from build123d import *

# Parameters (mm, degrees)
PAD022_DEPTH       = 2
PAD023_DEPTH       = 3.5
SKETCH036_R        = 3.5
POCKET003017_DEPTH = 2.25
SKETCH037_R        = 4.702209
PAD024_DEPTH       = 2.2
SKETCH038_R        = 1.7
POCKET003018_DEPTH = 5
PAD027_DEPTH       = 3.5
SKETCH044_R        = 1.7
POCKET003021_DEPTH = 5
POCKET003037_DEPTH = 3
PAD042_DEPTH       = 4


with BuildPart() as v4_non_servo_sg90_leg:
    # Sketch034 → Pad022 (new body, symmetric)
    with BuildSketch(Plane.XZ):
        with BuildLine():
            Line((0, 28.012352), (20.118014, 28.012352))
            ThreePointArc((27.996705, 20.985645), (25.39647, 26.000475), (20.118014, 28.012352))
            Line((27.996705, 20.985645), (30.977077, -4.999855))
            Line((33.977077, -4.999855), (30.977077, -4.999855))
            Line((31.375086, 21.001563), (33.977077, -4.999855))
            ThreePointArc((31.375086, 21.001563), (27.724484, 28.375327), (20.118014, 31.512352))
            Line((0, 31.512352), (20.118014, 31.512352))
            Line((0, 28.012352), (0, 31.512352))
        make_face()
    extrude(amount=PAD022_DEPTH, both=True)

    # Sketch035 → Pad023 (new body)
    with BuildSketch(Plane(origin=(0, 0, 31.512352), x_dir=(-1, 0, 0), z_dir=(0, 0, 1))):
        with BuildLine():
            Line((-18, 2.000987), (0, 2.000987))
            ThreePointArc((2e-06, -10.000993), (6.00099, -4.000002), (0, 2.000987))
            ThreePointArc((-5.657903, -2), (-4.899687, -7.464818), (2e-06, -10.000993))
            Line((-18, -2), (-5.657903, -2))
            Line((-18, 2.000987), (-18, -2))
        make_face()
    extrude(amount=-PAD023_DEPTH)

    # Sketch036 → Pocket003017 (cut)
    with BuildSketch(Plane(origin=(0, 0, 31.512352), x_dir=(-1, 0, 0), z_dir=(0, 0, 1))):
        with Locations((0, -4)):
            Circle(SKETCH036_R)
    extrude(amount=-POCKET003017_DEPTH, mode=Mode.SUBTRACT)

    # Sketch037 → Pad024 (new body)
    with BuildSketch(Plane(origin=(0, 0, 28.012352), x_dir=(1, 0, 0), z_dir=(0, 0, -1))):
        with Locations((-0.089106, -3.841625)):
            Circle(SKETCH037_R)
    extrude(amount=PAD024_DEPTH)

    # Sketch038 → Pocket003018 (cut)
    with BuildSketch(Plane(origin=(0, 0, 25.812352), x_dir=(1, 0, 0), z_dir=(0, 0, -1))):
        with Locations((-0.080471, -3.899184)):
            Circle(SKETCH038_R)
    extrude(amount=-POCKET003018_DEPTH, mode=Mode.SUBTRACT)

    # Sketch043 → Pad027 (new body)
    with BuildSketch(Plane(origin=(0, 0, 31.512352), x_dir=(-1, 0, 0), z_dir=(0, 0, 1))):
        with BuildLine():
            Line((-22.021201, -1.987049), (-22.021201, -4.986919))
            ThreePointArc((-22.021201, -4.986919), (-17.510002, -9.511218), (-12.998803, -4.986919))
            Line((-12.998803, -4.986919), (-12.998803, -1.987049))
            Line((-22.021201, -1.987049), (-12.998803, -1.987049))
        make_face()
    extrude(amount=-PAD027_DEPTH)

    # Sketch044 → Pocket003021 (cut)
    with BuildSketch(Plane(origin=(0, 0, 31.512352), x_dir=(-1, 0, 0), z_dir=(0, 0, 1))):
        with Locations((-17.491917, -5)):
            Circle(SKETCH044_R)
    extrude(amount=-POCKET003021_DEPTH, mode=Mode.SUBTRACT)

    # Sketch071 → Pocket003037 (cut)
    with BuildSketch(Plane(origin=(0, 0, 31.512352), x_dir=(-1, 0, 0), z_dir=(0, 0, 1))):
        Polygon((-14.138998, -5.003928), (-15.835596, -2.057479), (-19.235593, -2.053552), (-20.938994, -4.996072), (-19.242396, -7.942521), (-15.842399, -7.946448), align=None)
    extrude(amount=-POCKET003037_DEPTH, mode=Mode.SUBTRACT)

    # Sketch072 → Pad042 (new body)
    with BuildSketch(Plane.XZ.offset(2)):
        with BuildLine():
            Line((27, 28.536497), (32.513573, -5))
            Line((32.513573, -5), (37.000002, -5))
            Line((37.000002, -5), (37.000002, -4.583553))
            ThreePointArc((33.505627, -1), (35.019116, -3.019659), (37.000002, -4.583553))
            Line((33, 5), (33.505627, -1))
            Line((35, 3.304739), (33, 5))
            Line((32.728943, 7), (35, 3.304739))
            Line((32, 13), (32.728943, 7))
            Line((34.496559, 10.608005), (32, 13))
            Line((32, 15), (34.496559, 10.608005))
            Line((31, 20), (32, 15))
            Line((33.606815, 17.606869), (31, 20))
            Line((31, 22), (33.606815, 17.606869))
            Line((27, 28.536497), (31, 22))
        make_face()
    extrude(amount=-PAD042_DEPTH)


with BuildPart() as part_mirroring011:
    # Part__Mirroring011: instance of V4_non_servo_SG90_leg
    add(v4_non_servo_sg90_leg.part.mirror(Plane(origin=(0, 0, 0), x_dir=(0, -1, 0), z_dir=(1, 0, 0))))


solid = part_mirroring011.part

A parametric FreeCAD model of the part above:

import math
import FreeCAD as App
import Part
import Sketcher

V = App.Vector

doc = App.newDocument("Part")
body = doc.addObject("PartDesign::Body", "Body")

sketch1 = body.newObject("Sketcher::SketchObject", "Sketch")
sketch1.AttachmentSupport = (doc.getObject("XZ_Plane"), [""])
sketch1.MapMode = "FlatFace"
sketch1.addGeometry(Part.LineSegment(V(0, 28, 0), V(20.1, 28, 0)), False)
sketch1.addGeometry(Part.ArcOfCircle(Part.Circle(V(20.1, 20.1, 0), V(0, 0, 1), 7.9), math.radians(7), math.radians(90)), False)
sketch1.addGeometry(Part.LineSegment(V(28, 21, 0), V(31, -5, 0)), False)
sketch1.addGeometry(Part.LineSegment(V(31, -5, 0), V(34, -5, 0)), False)
sketch1.addGeometry(Part.LineSegment(V(34, -5, 0), V(31.4, 21, 0)), False)
sketch1.addGeometry(Part.ArcOfCircle(Part.Circle(V(19.8, 19.8, 0), V(0, 0, 1), 11.7), math.radians(6), math.radians(88)), False)
sketch1.addGeometry(Part.LineSegment(V(20.1, 31.5, 0), V(0, 31.5, 0)), False)
sketch1.addGeometry(Part.LineSegment(V(0, 31.5, 0), V(0, 28, 0)), False)
sketch1.addConstraint(Sketcher.Constraint("Tangent", 0, 2, 1, 2))
sketch1.addConstraint(Sketcher.Constraint("Tangent", 1, 1, 2, 1))
sketch1.addConstraint(Sketcher.Constraint("Coincident", 2, 2, 3, 1))
sketch1.addConstraint(Sketcher.Constraint("Coincident", 3, 2, 4, 1))
sketch1.addConstraint(Sketcher.Constraint("Tangent", 4, 2, 5, 1))
sketch1.addConstraint(Sketcher.Constraint("Coincident", 5, 2, 6, 1))
sketch1.addConstraint(Sketcher.Constraint("Coincident", 6, 2, 7, 1))
sketch1.addConstraint(Sketcher.Constraint("Coincident", 7, 2, 0, 1))
sketch1.addConstraint(Sketcher.Constraint("Horizontal", 0))
sketch1.addConstraint(Sketcher.Constraint("Horizontal", 3))
sketch1.addConstraint(Sketcher.Constraint("Horizontal", 6))
sketch1.addConstraint(Sketcher.Constraint("Vertical", 7))
sketch1.addConstraint(Sketcher.Constraint("PointOnObject", 6, 2, -2))
sketch1.addConstraint(Sketcher.Constraint("Vertical", 0, 2, 5, 2))
sketch1.addConstraint(Sketcher.Constraint("DistanceX", 3, 1, 3, 2, 3.0))
sketch1.addConstraint(Sketcher.Constraint("DistanceY", 7, 2, 7, 1, 3.5))
sketch1.addConstraint(Sketcher.Constraint("Radius", 5, 11.679439))
sketch1.addConstraint(Sketcher.Constraint("Radius", 1, 7.930342))
sketch1.addConstraint(Sketcher.Constraint("DistanceY", 2, 2, 1, 1, 25.9855))
sketch1.addConstraint(Sketcher.Constraint("DistanceX", 0, 1, 0, 2, 20.118014))
sketch1.addConstraint(Sketcher.Constraint("DistanceY", -1, 1, 1, 3, 20.08201))
sketch1.addConstraint(Sketcher.Constraint("DistanceX", -1, 1, 5, 3, 19.753692))
sketch1.addConstraint(Sketcher.Constraint("DistanceX", 1, 3, 1, 1, 7.878691))
pad1 = body.newObject("PartDesign::Pad", "Pad")
pad1.Profile = sketch1
pad1.Length = 4
pad1.Midplane = True

sketch2 = body.newObject("Sketcher::SketchObject", "Sketch001")
sketch2.AttachmentSupport = (doc.getObject("XY_Plane"), [""])
sketch2.MapMode = "FlatFace"
sketch2.AttachmentOffset = App.Placement(V(0, 0, 31.512352), App.Rotation())
sketch2.addGeometry(Part.LineSegment(V(0, -2, 0), V(18, -2, 0)), False)
sketch2.addGeometry(Part.LineSegment(V(18, -2, 0), V(18, 2, 0)), False)
sketch2.addGeometry(Part.LineSegment(V(18, 2, 0), V(5.7, 2, 0)), False)
sketch2.addGeometry(Part.ArcOfCircle(Part.Circle(V(0, 4, 0), V(0, 0, 1), 6), math.radians(-19), math.radians(90)), False)
sketch2.addGeometry(Part.ArcOfCircle(Part.Circle(V(0, 4, 0), V(0, 0, 1), 6), math.radians(90), math.radians(270)), False)
sketch2.addConstraint(Sketcher.Constraint("Coincident", 0, 2, 1, 1))
sketch2.addConstraint(Sketcher.Constraint("Coincident", 1, 2, 2, 1))
sketch2.addConstraint(Sketcher.Constraint("Coincident", 2, 2, 3, 1))
sketch2.addConstraint(Sketcher.Constraint("Tangent", 3, 2, 4, 1))
sketch2.addConstraint(Sketcher.Constraint("Tangent", 4, 2, 0, 1))
sketch2.addConstraint(Sketcher.Constraint("Horizontal", 0))
sketch2.addConstraint(Sketcher.Constraint("Vertical", 1))
sketch2.addConstraint(Sketcher.Constraint("Horizontal", 2))
sketch2.addConstraint(Sketcher.Constraint("Equal", 3, 4))
sketch2.addConstraint(Sketcher.Constraint("PointOnObject", 3, 3, -2))
sketch2.addConstraint(Sketcher.Constraint("PointOnObject", 3, 2, -2))
sketch2.addConstraint(Sketcher.Constraint("DistanceX", 0, 1, 0, 2, 18.0))
sketch2.addConstraint(Sketcher.Constraint("DistanceY", -1, 1, 1, 2, 2.0))
sketch2.addConstraint(Sketcher.Constraint("Radius", 3, 6.00099))
sketch2.addConstraint(Sketcher.Constraint("DistanceX", 2, 2, 2, 1, 12.342097))
pad2 = body.newObject("PartDesign::Pad", "Pad001")
pad2.Profile = sketch2
pad2.Length = 3.5
pad2.Reversed = True

sketch3 = body.newObject("Sketcher::SketchObject", "Sketch002")
sketch3.AttachmentSupport = (doc.getObject("XY_Plane"), [""])
sketch3.MapMode = "FlatFace"
sketch3.AttachmentOffset = App.Placement(V(0, 0, 31.512352), App.Rotation())
sketch3.addGeometry(Part.Circle(V(0, 4, 0), V(0, 0, 1), 3.5), False)
sketch3.addConstraint(Sketcher.Constraint("PointOnObject", 0, 3, -2))
sketch3.addConstraint(Sketcher.Constraint("Diameter", 0, 7.0))
sketch3.addConstraint(Sketcher.Constraint("DistanceY", -1, 1, 0, 3, 4.0))
pocket1 = body.newObject("PartDesign::Pocket", "Pocket")
pocket1.Profile = sketch3
pocket1.Length = 2.25

sketch4 = body.newObject("Sketcher::SketchObject", "Sketch003")
sketch4.AttachmentSupport = (doc.getObject("XY_Plane"), [""])
sketch4.MapMode = "FlatFace"
sketch4.AttachmentOffset = App.Placement(V(0, 0, 28.012352), App.Rotation())
sketch4.addGeometry(Part.Circle(V(-0.1, 3.8, 0), V(0, 0, 1), 4.7), False)
sketch4.addConstraint(Sketcher.Constraint("Diameter", 0, 9.404418))
sketch4.addConstraint(Sketcher.Constraint("DistanceX", 0, 3, -1, 1, 0.089106))
sketch4.addConstraint(Sketcher.Constraint("DistanceY", -1, 1, 0, 3, 3.841625))
pad3 = body.newObject("PartDesign::Pad", "Pad002")
pad3.Profile = sketch4
pad3.Length = 2.2
pad3.Reversed = True

sketch5 = body.newObject("Sketcher::SketchObject", "Sketch004")
sketch5.AttachmentSupport = (doc.getObject("XY_Plane"), [""])
sketch5.MapMode = "FlatFace"
sketch5.AttachmentOffset = App.Placement(V(0, 0, 25.812352), App.Rotation())
sketch5.addGeometry(Part.Circle(V(-0.1, 3.9, 0), V(0, 0, 1), 1.7), False)
sketch5.addConstraint(Sketcher.Constraint("Diameter", 0, 3.4))
sketch5.addConstraint(Sketcher.Constraint("DistanceX", 0, 3, -1, 1, 0.080471))
sketch5.addConstraint(Sketcher.Constraint("DistanceY", -1, 1, 0, 3, 3.899184))
pocket2 = body.newObject("PartDesign::Pocket", "Pocket001")
pocket2.Profile = sketch5
pocket2.Length = 5
pocket2.Reversed = True

sketch6 = body.newObject("Sketcher::SketchObject", "Sketch005")
sketch6.AttachmentSupport = (doc.getObject("XY_Plane"), [""])
sketch6.MapMode = "FlatFace"
sketch6.AttachmentOffset = App.Placement(V(0, 0, 31.512352), App.Rotation())
sketch6.addGeometry(Part.LineSegment(V(22.021201, 1.987049, 0), V(22.021201, 4.986919, 0)), False)
sketch6.addGeometry(Part.ArcOfCircle(Part.Circle(V(17.510002, 5, 0), V(0, 0, 1), 4.511218), math.radians(-0.166139), math.radians(180.166139)), False)
sketch6.addGeometry(Part.LineSegment(V(12.998803, 4.986919, 0), V(12.998803, 1.987049, 0)), False)
sketch6.addGeometry(Part.LineSegment(V(12.998803, 1.987049, 0), V(22.021201, 1.987049, 0)), False)
sketch6.addConstraint(Sketcher.Constraint("Coincident", 0, 2, 1, 1))
sketch6.addConstraint(Sketcher.Constraint("Coincident", 1, 2, 2, 1))
sketch6.addConstraint(Sketcher.Constraint("Coincident", 2, 2, 3, 1))
sketch6.addConstraint(Sketcher.Constraint("Coincident", 3, 2, 0, 1))
sketch6.addConstraint(Sketcher.Constraint("Vertical", 0))
sketch6.addConstraint(Sketcher.Constraint("Vertical", 2))
sketch6.addConstraint(Sketcher.Constraint("Horizontal", 3))
sketch6.addConstraint(Sketcher.Constraint("Horizontal", 0, 2, 1, 2))
sketch6.addConstraint(Sketcher.Constraint("DistanceY", -1, 1, 1, 3, 5.0))
sketch6.addConstraint(Sketcher.Constraint("DistanceX", -1, 1, 1, 3, 17.510002))
sketch6.addConstraint(Sketcher.Constraint("DistanceX", 3, 1, 3, 2, 9.022398))
sketch6.addConstraint(Sketcher.Constraint("Radius", 1, 4.511218))
sketch6.addConstraint(Sketcher.Constraint("DistanceY", 0, 1, 0, 2, 2.99987))
pad4 = body.newObject("PartDesign::Pad", "Pad003")
pad4.Profile = sketch6
pad4.Length = 3.5
pad4.Reversed = True

sketch7 = body.newObject("Sketcher::SketchObject", "Sketch006")
sketch7.AttachmentSupport = (doc.getObject("XY_Plane"), [""])
sketch7.MapMode = "FlatFace"
sketch7.AttachmentOffset = App.Placement(V(0, 0, 31.512352), App.Rotation())
sketch7.addGeometry(Part.Circle(V(17.5, 5, 0), V(0, 0, 1), 1.7), False)
sketch7.addConstraint(Sketcher.Constraint("Diameter", 0, 3.4))
sketch7.addConstraint(Sketcher.Constraint("DistanceY", -1, 1, 0, 3, 5.0))
sketch7.addConstraint(Sketcher.Constraint("DistanceX", -1, 1, 0, 3, 17.491917))
pocket3 = body.newObject("PartDesign::Pocket", "Pocket002")
pocket3.Profile = sketch7
pocket3.Length = 5

sketch8 = body.newObject("Sketcher::SketchObject", "Sketch007")
sketch8.AttachmentSupport = (doc.getObject("XY_Plane"), [""])
sketch8.MapMode = "FlatFace"
sketch8.AttachmentOffset = App.Placement(V(0, 0, 31.512352), App.Rotation())
sketch8.addGeometry(Part.LineSegment(V(14.1, 5, 0), V(15.8, 2.1, 0)), False)
sketch8.addGeometry(Part.LineSegment(V(15.8, 2.1, 0), V(19.2, 2.1, 0)), False)
sketch8.addGeometry(Part.LineSegment(V(19.2, 2.1, 0), V(20.9, 5, 0)), False)
sketch8.addGeometry(Part.LineSegment(V(20.9, 5, 0), V(19.2, 7.9, 0)), False)
sketch8.addGeometry(Part.LineSegment(V(19.2, 7.9, 0), V(15.8, 7.9, 0)), False)
sketch8.addGeometry(Part.LineSegment(V(15.8, 7.9, 0), V(14.1, 5, 0)), False)
sketch8.addConstraint(Sketcher.Constraint("Coincident", 0, 2, 1, 1))
sketch8.addConstraint(Sketcher.Constraint("Coincident", 1, 2, 2, 1))
sketch8.addConstraint(Sketcher.Constraint("Coincident", 2, 2, 3, 1))
sketch8.addConstraint(Sketcher.Constraint("Coincident", 3, 2, 4, 1))
sketch8.addConstraint(Sketcher.Constraint("Coincident", 4, 2, 5, 1))
sketch8.addConstraint(Sketcher.Constraint("Coincident", 5, 2, 0, 1))
sketch8.addConstraint(Sketcher.Constraint("Parallel", 0, 3))
sketch8.addConstraint(Sketcher.Constraint("Parallel", 1, 4))
sketch8.addConstraint(Sketcher.Constraint("Parallel", 2, 5))
sketch8.addConstraint(Sketcher.Constraint("Equal", 0, 1))
sketch8.addConstraint(Sketcher.Constraint("Equal", 1, 2))
sketch8.addConstraint(Sketcher.Constraint("Equal", 2, 3))
sketch8.addConstraint(Sketcher.Constraint("Distance", 0, 3.400001))
sketch8.addConstraint(Sketcher.Constraint("DistanceX", -1, 1, 5, 2, 14.138998))
sketch8.addConstraint(Sketcher.Constraint("DistanceX", -1, 1, 4, 2, 15.842399))
sketch8.addConstraint(Sketcher.Constraint("DistanceX", 3, 2, 2, 2, 1.696598))
sketch8.addConstraint(Sketcher.Constraint("DistanceY", -1, 1, 0, 2, 2.057479))
sketch8.addConstraint(Sketcher.Constraint("DistanceY", -1, 1, 1, 2, 2.053552))
pocket4 = body.newObject("PartDesign::Pocket", "Pocket003")
pocket4.Profile = sketch8
pocket4.Length = 3

sketch9 = body.newObject("Sketcher::SketchObject", "Sketch008")
sketch9.AttachmentSupport = (doc.getObject("XZ_Plane"), [""])
sketch9.MapMode = "FlatFace"
sketch9.AttachmentOffset = App.Placement(V(0, 0, 2), App.Rotation())
sketch9.addGeometry(Part.LineSegment(V(27, 28.54, 0), V(32.51, -5, 0)), False)
sketch9.addGeometry(Part.LineSegment(V(32.51, -5, 0), V(37, -5, 0)), False)
sketch9.addGeometry(Part.LineSegment(V(37, -5, 0), V(37, -4.58, 0)), False)
sketch9.addGeometry(Part.ArcOfCircle(Part.Circle(V(42, 3.79, 0), V(0, 0, 1), 9.76), math.radians(-151), math.radians(-121)), False)
sketch9.addGeometry(Part.LineSegment(V(33.51, -1, 0), V(33, 5, 0)), False)
sketch9.addGeometry(Part.LineSegment(V(33, 5, 0), V(35, 3.3, 0)), False)
sketch9.addGeometry(Part.LineSegment(V(35, 3.3, 0), V(32.73, 7, 0)), False)
sketch9.addGeometry(Part.LineSegment(V(32.73, 7, 0), V(32, 13, 0)), False)
sketch9.addGeometry(Part.LineSegment(V(32, 13, 0), V(34.5, 10.61, 0)), False)
sketch9.addGeometry(Part.LineSegment(V(34.5, 10.61, 0), V(32, 15, 0)), False)
sketch9.addGeometry(Part.LineSegment(V(32, 15, 0), V(31, 20, 0)), False)
sketch9.addGeometry(Part.LineSegment(V(31, 20, 0), V(33.61, 17.61, 0)), False)
sketch9.addGeometry(Part.LineSegment(V(33.61, 17.61, 0), V(31, 22, 0)), False)
sketch9.addGeometry(Part.LineSegment(V(31, 22, 0), V(27, 28.54, 0)), False)
sketch9.addConstraint(Sketcher.Constraint("Coincident", 0, 2, 1, 1))
sketch9.addConstraint(Sketcher.Constraint("Coincident", 1, 2, 2, 1))
sketch9.addConstraint(Sketcher.Constraint("Coincident", 2, 2, 3, 2))
sketch9.addConstraint(Sketcher.Constraint("Coincident", 3, 1, 4, 1))
sketch9.addConstraint(Sketcher.Constraint("Coincident", 4, 2, 5, 1))
sketch9.addConstraint(Sketcher.Constraint("Coincident", 5, 2, 6, 1))
sketch9.addConstraint(Sketcher.Constraint("Coincident", 6, 2, 7, 1))
sketch9.addConstraint(Sketcher.Constraint("Coincident", 7, 2, 8, 1))
sketch9.addConstraint(Sketcher.Constraint("Coincident", 8, 2, 9, 1))
sketch9.addConstraint(Sketcher.Constraint("Coincident", 9, 2, 10, 1))
sketch9.addConstraint(Sketcher.Constraint("Coincident", 10, 2, 11, 1))
sketch9.addConstraint(Sketcher.Constraint("Coincident", 11, 2, 12, 1))
sketch9.addConstraint(Sketcher.Constraint("Coincident", 12, 2, 13, 1))
sketch9.addConstraint(Sketcher.Constraint("Coincident", 13, 2, 0, 1))
sketch9.addConstraint(Sketcher.Constraint("Horizontal", 1))
sketch9.addConstraint(Sketcher.Constraint("Vertical", 2))
sketch9.addConstraint(Sketcher.Constraint("Vertical", 7, 2, 9, 2))
sketch9.addConstraint(Sketcher.Constraint("Vertical", 10, 2, 12, 2))
sketch9.addConstraint(Sketcher.Constraint("DistanceY", 0, 2, -1, 1, 5.0))
sketch9.addConstraint(Sketcher.Constraint("DistanceY", 3, 1, -1, 1, 1.0))
sketch9.addConstraint(Sketcher.Constraint("DistanceX", -1, 1, 4, 2, 33.0))
sketch9.addConstraint(Sketcher.Constraint("DistanceY", -1, 1, 4, 2, 5.0))
sketch9.addConstraint(Sketcher.Constraint("DistanceX", -1, 1, 5, 2, 35.0))
sketch9.addConstraint(Sketcher.Constraint("DistanceY", -1, 1, 6, 2, 7.0))
sketch9.addConstraint(Sketcher.Constraint("DistanceX", -1, 1, 7, 2, 32.0))
sketch9.addConstraint(Sketcher.Constraint("DistanceY", -1, 1, 7, 2, 13.0))
sketch9.addConstraint(Sketcher.Constraint("DistanceY", -1, 1, 9, 2, 15.0))
sketch9.addConstraint(Sketcher.Constraint("DistanceX", -1, 1, 10, 2, 31.0))
sketch9.addConstraint(Sketcher.Constraint("DistanceY", -1, 1, 10, 2, 20.0))
sketch9.addConstraint(Sketcher.Constraint("DistanceY", -1, 1, 12, 2, 22.0))
sketch9.addConstraint(Sketcher.Constraint("DistanceX", -1, 1, 13, 2, 27.0))
sketch9.addConstraint(Sketcher.Constraint("Radius", 3, 9.757077))
sketch9.addConstraint(Sketcher.Constraint("DistanceX", 1, 1, 1, 2, 4.486429))
sketch9.addConstraint(Sketcher.Constraint("Distance", 8, 3.45752))
sketch9.addConstraint(Sketcher.Constraint("DistanceY", 2, 1, 2, 2, 0.416447))
sketch9.addConstraint(Sketcher.Constraint("DistanceY", -1, 1, 5, 2, 3.304739))
sketch9.addConstraint(Sketcher.Constraint("DistanceX", -1, 1, 8, 2, 34.496559))
sketch9.addConstraint(Sketcher.Constraint("DistanceY", -1, 1, 11, 2, 17.606869))
sketch9.addConstraint(Sketcher.Constraint("DistanceX", 0, 2, 3, 3, 9.491211))
sketch9.addConstraint(Sketcher.Constraint("DistanceX", 6, 2, 3, 3, 9.275841))
sketch9.addConstraint(Sketcher.Constraint("DistanceX", 6, 2, 11, 2, 0.877872))
sketch9.addConstraint(Sketcher.Constraint("DistanceY", 11, 2, 13, 2, 10.929628))
sketch9.addConstraint(Sketcher.Constraint("Distance", 0, 33.986705))
pad5 = body.newObject("PartDesign::Pad", "Pad004")
pad5.Profile = sketch9
pad5.Length = 4
pad5.Reversed = True
body2 = doc.addObject("PartDesign::Body", "Body001")
doc.recompute()

mirroring = doc.addObject("Part::Mirroring", "Mirroring")
mirroring.Source = body
mirroring.Base = V(0, 0, 0)
mirroring.Normal = V(1, 0, 0)
body2.BaseFeature = mirroring
doc.recompute()
body.Visibility = False
mirroring.Visibility = False

doc.recompute()
